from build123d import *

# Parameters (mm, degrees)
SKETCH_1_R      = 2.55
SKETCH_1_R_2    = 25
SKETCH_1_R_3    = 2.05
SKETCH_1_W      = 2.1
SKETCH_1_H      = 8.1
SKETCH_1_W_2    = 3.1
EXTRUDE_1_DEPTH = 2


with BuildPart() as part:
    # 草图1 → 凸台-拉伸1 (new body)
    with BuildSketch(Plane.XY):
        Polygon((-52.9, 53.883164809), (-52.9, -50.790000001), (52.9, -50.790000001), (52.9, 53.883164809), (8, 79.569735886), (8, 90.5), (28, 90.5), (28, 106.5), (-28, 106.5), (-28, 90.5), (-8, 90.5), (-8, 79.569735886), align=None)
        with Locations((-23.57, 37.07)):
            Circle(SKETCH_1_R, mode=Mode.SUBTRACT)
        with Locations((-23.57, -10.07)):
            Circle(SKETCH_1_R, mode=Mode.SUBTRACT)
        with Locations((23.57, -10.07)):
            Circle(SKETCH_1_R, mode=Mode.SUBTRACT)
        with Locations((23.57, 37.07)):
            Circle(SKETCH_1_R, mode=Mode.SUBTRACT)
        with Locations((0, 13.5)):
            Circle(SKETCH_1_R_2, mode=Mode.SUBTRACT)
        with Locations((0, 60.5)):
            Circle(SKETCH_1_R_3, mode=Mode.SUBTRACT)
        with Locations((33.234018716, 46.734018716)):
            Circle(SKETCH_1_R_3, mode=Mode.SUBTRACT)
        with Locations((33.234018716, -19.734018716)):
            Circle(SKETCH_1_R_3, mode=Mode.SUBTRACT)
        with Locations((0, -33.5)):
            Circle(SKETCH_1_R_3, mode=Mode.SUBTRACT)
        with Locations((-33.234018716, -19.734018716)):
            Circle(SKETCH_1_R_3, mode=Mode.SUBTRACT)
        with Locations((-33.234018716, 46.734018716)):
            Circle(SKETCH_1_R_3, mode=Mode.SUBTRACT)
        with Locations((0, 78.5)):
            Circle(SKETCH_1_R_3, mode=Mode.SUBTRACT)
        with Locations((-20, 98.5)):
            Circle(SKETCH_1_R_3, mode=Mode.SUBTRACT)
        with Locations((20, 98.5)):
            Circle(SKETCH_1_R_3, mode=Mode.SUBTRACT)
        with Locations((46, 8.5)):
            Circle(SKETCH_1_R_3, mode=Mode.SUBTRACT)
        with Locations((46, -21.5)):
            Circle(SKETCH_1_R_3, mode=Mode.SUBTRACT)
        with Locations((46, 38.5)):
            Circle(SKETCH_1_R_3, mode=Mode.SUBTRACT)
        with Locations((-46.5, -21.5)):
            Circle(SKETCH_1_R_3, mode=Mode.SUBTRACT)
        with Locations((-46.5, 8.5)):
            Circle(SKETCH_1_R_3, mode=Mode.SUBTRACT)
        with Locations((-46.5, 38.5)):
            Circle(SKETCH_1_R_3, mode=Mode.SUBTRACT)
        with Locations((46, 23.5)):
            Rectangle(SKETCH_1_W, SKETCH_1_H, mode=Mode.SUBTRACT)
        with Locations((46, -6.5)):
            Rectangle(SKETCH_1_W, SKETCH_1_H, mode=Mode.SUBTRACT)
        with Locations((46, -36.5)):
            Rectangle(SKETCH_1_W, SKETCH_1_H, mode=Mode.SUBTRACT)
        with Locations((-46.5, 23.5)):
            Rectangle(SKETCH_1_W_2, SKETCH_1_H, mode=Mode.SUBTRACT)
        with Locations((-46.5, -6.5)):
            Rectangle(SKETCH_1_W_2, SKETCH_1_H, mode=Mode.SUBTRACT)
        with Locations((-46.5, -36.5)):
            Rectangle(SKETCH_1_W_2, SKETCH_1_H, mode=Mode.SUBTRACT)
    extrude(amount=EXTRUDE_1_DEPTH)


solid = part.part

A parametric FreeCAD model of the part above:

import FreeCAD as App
import Part
import Sketcher
from FreeCAD import Vector
Q = App.Units.Quantity


def add_polygon(sketch, points):
    """Adds a closed chain of lines whose ends are joined by coincident constraints."""
    first, n = sketch.GeometryCount, len(points)
    for a, b in zip(points, points[1:] + points[:1]):
        sketch.addGeometry(Part.LineSegment(App.Vector(*a, 0), App.Vector(*b, 0)), False)
    for i in range(n):
        sketch.addConstraint(Sketcher.Constraint("Coincident", first + i, 2, first + (i + 1) % n, 1))

doc = App.newDocument("Part")
params = doc.addObject("Spreadsheet::Sheet", "Params")
for row, (alias, value) in enumerate([
    ("sketch1_diameter", "50 mm"),
    ("sketch1_diameter2", "4.1 mm"),
    ("sketch1_diameter3", "5.1 mm"),
    ("sketch1_width", "20 mm"),
    ("sketch1_width2", "56 mm"),
    ("pad1_length", "2 mm"),
], start=1):
    params.set(f"A{row}", alias)
    params.set(f"B{row}", "=" + value)
    params.setAlias(f"B{row}", alias)

body = doc.addObject("PartDesign::Body", "Body")

# Sketch on XY plane
sketch1 = body.newObject("Sketcher::SketchObject", "Sketch")
sketch1.AttachmentSupport = (doc.getObject("XY_Plane"), [""])
sketch1.MapMode = "FlatFace"
add_polygon(sketch1, [(-52.9, 53.9), (-52.9, -50.8), (52.9, -50.8), (52.9, 53.9), (8, 79.6), (8, 90.5), (28, 90.5), (28, 106.5), (-28, 106.5), (-28, 90.5), (-8, 90.5), (-8, 79.6)])  # lines 0-11
add_polygon(sketch1, [(-45, -40.5), (-48, -40.5), (-48, -32.5), (-45, -32.5)])  # lines 12-15
sketch1.addGeometry(Part.Circle(Vector(-46.5, -21.5, 0), Vector(0, 0, 1), 2), False)  # 16
add_polygon(sketch1, [(-45, -10.6), (-48, -10.6), (-48, -2.5), (-45, -2.5)])  # lines 17-20
sketch1.addGeometry(Part.Circle(Vector(-33.2, -19.7, 0), Vector(0, 0, 1), 2), False)  # 21
sketch1.addGeometry(Part.Circle(Vector(-23.6, -10.1, 0), Vector(0, 0, 1), 2.5), False)  # 22
sketch1.addGeometry(Part.Circle(Vector(-46.5, 8.5, 0), Vector(0, 0, 1), 2), False)  # 23
add_polygon(sketch1, [(-45, 19.4), (-48, 19.4), (-48, 27.6), (-45, 27.6)])  # lines 24-27
sketch1.addGeometry(Part.Circle(Vector(0, -33.5, 0), Vector(0, 0, 1), 2), False)  # 28
sketch1.addGeometry(Part.Circle(Vector(23.6, -10.1, 0), Vector(0, 0, 1), 2.5), False)  # 29
add_polygon(sketch1, [(47, -40.5), (45, -40.5), (45, -32.5), (47, -32.5)])  # lines 30-33
sketch1.addGeometry(Part.Circle(Vector(33.2, -19.7, 0), Vector(0, 0, 1), 2), False)  # 34
sketch1.addGeometry(Part.Circle(Vector(46, -21.5, 0), Vector(0, 0, 1), 2), False)  # 35
add_polygon(sketch1, [(47, -10.6), (45, -10.6), (45, -2.5), (47, -2.5)])  # lines 36-39
sketch1.addGeometry(Part.Circle(Vector(0, 13.5, 0), Vector(0, 0, 1), 25), False)  # 40
sketch1.addGeometry(Part.Circle(Vector(46, 8.5, 0), Vector(0, 0, 1), 2), False)  # 41
add_polygon(sketch1, [(47, 19.4), (45, 19.4), (45, 27.6), (47, 27.6)])  # lines 42-45
sketch1.addGeometry(Part.Circle(Vector(-46.5, 38.5, 0), Vector(0, 0, 1), 2), False)  # 46
sketch1.addGeometry(Part.Circle(Vector(-33.2, 46.7, 0), Vector(0, 0, 1), 2), False)  # 47
sketch1.addGeometry(Part.Circle(Vector(-23.6, 37.1, 0), Vector(0, 0, 1), 2.5), False)  # 48
sketch1.addGeometry(Part.Circle(Vector(-20, 98.5, 0), Vector(0, 0, 1), 2), False)  # 49
sketch1.addGeometry(Part.Circle(Vector(23.6, 37.1, 0), Vector(0, 0, 1), 2.5), False)  # 50
sketch1.addGeometry(Part.Circle(Vector(0, 60.5, 0), Vector(0, 0, 1), 2), False)  # 51
sketch1.addGeometry(Part.Circle(Vector(33.2, 46.7, 0), Vector(0, 0, 1), 2), False)  # 52
sketch1.addGeometry(Part.Circle(Vector(46, 38.5, 0), Vector(0, 0, 1), 2), False)  # 53
sketch1.addGeometry(Part.Circle(Vector(0, 78.5, 0), Vector(0, 0, 1), 2), False)  # 54
sketch1.addGeometry(Part.Circle(Vector(20, 98.5, 0), Vector(0, 0, 1), 2), False)  # 55
sketch1.addConstraint([
    Sketcher.Constraint("Vertical", 0),
    Sketcher.Constraint("Horizontal", 1),
    Sketcher.Constraint("Vertical", 2),
    Sketcher.Constraint("Vertical", 4),
    Sketcher.Constraint("Horizontal", 5),
    Sketcher.Constraint("Vertical", 6),
    Sketcher.Constraint("Horizontal", 7),
    Sketcher.Constraint("Vertical", 8),
    Sketcher.Constraint("Horizontal", 9),
    Sketcher.Constraint("Vertical", 10),
    Sketcher.Constraint("Horizontal", 12),
    Sketcher.Constraint("Vertical", 13),
    Sketcher.Constraint("Horizontal", 14),
    Sketcher.Constraint("Vertical", 15),
    Sketcher.Constraint("Horizontal", 17),
    Sketcher.Constraint("Vertical", 18),
    Sketcher.Constraint("Horizontal", 19),
    Sketcher.Constraint("Vertical", 20),
    Sketcher.Constraint("Horizontal", 24),
    Sketcher.Constraint("Vertical", 25),
    Sketcher.Constraint("Horizontal", 26),
    Sketcher.Constraint("Vertical", 27),
    Sketcher.Constraint("Horizontal", 30),
    Sketcher.Constraint("Vertical", 31),
    Sketcher.Constraint("Horizontal", 32),
    Sketcher.Constraint("Vertical", 33),
    Sketcher.Constraint("Horizontal", 36),
    Sketcher.Constraint("Vertical", 37),
    Sketcher.Constraint("Horizontal", 38),
    Sketcher.Constraint("Vertical", 39),
    Sketcher.Constraint("Horizontal", 42),
    Sketcher.Constraint("Vertical", 43),
    Sketcher.Constraint("Horizontal", 44),
    Sketcher.Constraint("Vertical", 45),
    Sketcher.Constraint("Equal", 16, 21),
    Sketcher.Constraint("Equal", 21, 23),
    Sketcher.Constraint("Equal", 23, 28),
    Sketcher.Constraint("Equal", 22, 29),
    Sketcher.Constraint("Equal", 28, 34),
    Sketcher.Constraint("Equal", 34, 35),
    Sketcher.Constraint("Equal", 35, 41),
    Sketcher.Constraint("Equal", 41, 46),
    Sketcher.Constraint("Equal", 46, 47),
    Sketcher.Constraint("Equal", 29, 48),
    Sketcher.Constraint("Equal", 47, 49),
    Sketcher.Constraint("Equal", 48, 50),
    Sketcher.Constraint("Equal", 49, 51),
    Sketcher.Constraint("Equal", 51, 52),
    Sketcher.Constraint("Equal", 52, 53),
    Sketcher.Constraint("Equal", 53, 54),
    Sketcher.Constraint("Equal", 54, 55),
    Sketcher.Constraint("Symmetric", 22, 3, 29, 3, -2),
    Sketcher.Constraint("Symmetric", 21, 3, 34, 3, -2),
    Sketcher.Constraint("Symmetric", 48, 3, 50, 3, -2),
    Sketcher.Constraint("Symmetric", 47, 3, 52, 3, -2),
    Sketcher.Constraint("Symmetric", 49, 3, 55, 3, -2),
    Sketcher.Constraint("Symmetric", 5, 2, 8, 2, -2),
    Sketcher.Constraint("Symmetric", 3, 2, 10, 2, -2),
    Sketcher.Constraint("Symmetric", 2, 2, 11, 2, -2),
    Sketcher.Constraint("Symmetric", 15, 2, 30, 2, -2),
    Sketcher.Constraint("Symmetric", 20, 2, 36, 2, -2),
    Sketcher.Constraint("Symmetric", 27, 2, 42, 2, -2),
    Sketcher.Constraint("PointOnObject", 28, 3, -2),
    Sketcher.Constraint("PointOnObject", 40, 3, -2),
    Sketcher.Constraint("PointOnObject", 51, 3, -2),
    Sketcher.Constraint("PointOnObject", 54, 3, -2),
    Sketcher.Constraint("Horizontal", 16, 3, 35, 3),
    Sketcher.Constraint("Horizontal", 23, 3, 41, 3),
    Sketcher.Constraint("Horizontal", 46, 3, 53, 3),
    Sketcher.Constraint("Horizontal", 14, 2, 31, 2),
    Sketcher.Constraint("Horizontal", 19, 2, 37, 2),
    Sketcher.Constraint("Horizontal", 26, 2, 43, 2),
    Sketcher.Constraint("Vertical", 16, 3, 23, 3),
    Sketcher.Constraint("Vertical", 35, 3, 41, 3),
    Sketcher.Constraint("Vertical", 23, 3, 46, 3),
    Sketcher.Constraint("Vertical", 21, 3, 47, 3),
    Sketcher.Constraint("Vertical", 22, 3, 48, 3),
    Sketcher.Constraint("Vertical", 41, 3, 53, 3),
    Sketcher.Constraint("Vertical", 13, 2, 17, 2),
    Sketcher.Constraint("Vertical", 15, 2, 19, 2),
    Sketcher.Constraint("Vertical", 18, 2, 24, 2),
    Sketcher.Constraint("Vertical", 20, 2, 26, 2),
    Sketcher.Constraint("Vertical", 33, 2, 38, 2),
    Sketcher.Constraint("Vertical", 39, 2, 44, 2),
    Sketcher.Constraint("Equal", 15, 18),
    Sketcher.Constraint("Equal", 20, 25),
    Sketcher.Constraint("Diameter", 40, Q("50 mm")),
    Sketcher.Constraint("Diameter", 16, Q("4.1 mm")),
    Sketcher.Constraint("Diameter", 22, Q("5.1 mm")),
    Sketcher.Constraint("DistanceX", 5, 1, 5, 2, Q("20 mm")),
    Sketcher.Constraint("DistanceX", 7, 2, 7, 1, Q("56 mm")),
    Sketcher.Constraint("DistanceY", 6, 1, 6, 2, Q("16 mm")),
    Sketcher.Constraint("DistanceX", 1, 1, 1, 2, Q("105.8 mm")),
    Sketcher.Constraint("DistanceX", 12, 2, 12, 1, Q("3.1 mm")),
    Sketcher.Constraint("DistanceX", 30, 2, 30, 1, Q("2.1 mm")),
    Sketcher.Constraint("DistanceY", 13, 1, 13, 2, Q("8.1 mm")),
    Sketcher.Constraint("DistanceX", -1, 1, 35, 3, Q("46 mm")),
    Sketcher.Constraint("DistanceX", 49, 3, -1, 1, Q("20 mm")),
    Sketcher.Constraint("DistanceY", 16, 3, 23, 3, Q("30 mm")),
    Sketcher.Constraint("DistanceY", 28, 3, 16, 3, Q("12 mm")),
    Sketcher.Constraint("DistanceY", 23, 3, 40, 3, Q("5 mm")),
    Sketcher.Constraint("DistanceY", 23, 3, 46, 3, Q("30 mm")),
    Sketcher.Constraint("DistanceY", 46, 3, 49, 3, Q("60 mm")),
    Sketcher.Constraint("DistanceY", 51, 3, 49, 3, Q("38 mm")),
    Sketcher.Constraint("DistanceY", 51, 3, 54, 3, Q("18 mm")),
    Sketcher.Constraint("DistanceY", 54, 3, 4, 2, Q("12 mm")),
    Sketcher.Constraint("DistanceY", 17, 2, 24, 2, Q("30 mm")),
    Sketcher.Constraint("DistanceX", 16, 3, -1, 1, Q("46.5 mm")),
    Sketcher.Constraint("DistanceY", 16, 3, -1, 1, Q("21.5 mm")),
    Sketcher.Constraint("DistanceY", 13, 2, 17, 2, Q("21.9 mm")),
    Sketcher.Constraint("DistanceX", 22, 3, -1, 1, Q("23.57 mm")),
    Sketcher.Constraint("DistanceY", 22, 3, -1, 1, Q("10.07 mm")),
    Sketcher.Constraint("DistanceY", -1, 1, 48, 3, Q("37.07 mm")),
    Sketcher.Constraint("DistanceY", 0, 2, -1, 1, Q("50.79 mm")),
    Sketcher.Constraint("DistanceX", 12, 2, -1, 1, Q("48.05 mm")),
    Sketcher.Constraint("DistanceY", 12, 2, -1, 1, Q("40.55 mm")),
    Sketcher.Constraint("Distance", 3, Q("51.728231 mm")),
    Sketcher.Constraint("DistanceY", 0, 2, 0, 1, Q("104.673165 mm")),
    Sketcher.Constraint("DistanceX", 21, 3, -1, 1, Q("33.234019 mm")),
    Sketcher.Constraint("DistanceY", 21, 3, -1, 1, Q("19.734019 mm")),
    Sketcher.Constraint("DistanceY", -1, 1, 47, 3, Q("46.734019 mm")),
])
sketch1.setExpression("Constraints[122]", "Params.sketch1_diameter")
sketch1.setExpression("Constraints[123]", "Params.sketch1_diameter2")
sketch1.setExpression("Constraints[124]", "Params.sketch1_diameter3")
sketch1.setExpression("Constraints[125]", "Params.sketch1_width")
sketch1.setExpression("Constraints[126]", "Params.sketch1_width2")
pad1 = body.newObject("PartDesign::Pad", "Pad")
pad1.Profile = sketch1
pad1.setExpression("Length", "Params.pad1_length")

doc.recompute()
